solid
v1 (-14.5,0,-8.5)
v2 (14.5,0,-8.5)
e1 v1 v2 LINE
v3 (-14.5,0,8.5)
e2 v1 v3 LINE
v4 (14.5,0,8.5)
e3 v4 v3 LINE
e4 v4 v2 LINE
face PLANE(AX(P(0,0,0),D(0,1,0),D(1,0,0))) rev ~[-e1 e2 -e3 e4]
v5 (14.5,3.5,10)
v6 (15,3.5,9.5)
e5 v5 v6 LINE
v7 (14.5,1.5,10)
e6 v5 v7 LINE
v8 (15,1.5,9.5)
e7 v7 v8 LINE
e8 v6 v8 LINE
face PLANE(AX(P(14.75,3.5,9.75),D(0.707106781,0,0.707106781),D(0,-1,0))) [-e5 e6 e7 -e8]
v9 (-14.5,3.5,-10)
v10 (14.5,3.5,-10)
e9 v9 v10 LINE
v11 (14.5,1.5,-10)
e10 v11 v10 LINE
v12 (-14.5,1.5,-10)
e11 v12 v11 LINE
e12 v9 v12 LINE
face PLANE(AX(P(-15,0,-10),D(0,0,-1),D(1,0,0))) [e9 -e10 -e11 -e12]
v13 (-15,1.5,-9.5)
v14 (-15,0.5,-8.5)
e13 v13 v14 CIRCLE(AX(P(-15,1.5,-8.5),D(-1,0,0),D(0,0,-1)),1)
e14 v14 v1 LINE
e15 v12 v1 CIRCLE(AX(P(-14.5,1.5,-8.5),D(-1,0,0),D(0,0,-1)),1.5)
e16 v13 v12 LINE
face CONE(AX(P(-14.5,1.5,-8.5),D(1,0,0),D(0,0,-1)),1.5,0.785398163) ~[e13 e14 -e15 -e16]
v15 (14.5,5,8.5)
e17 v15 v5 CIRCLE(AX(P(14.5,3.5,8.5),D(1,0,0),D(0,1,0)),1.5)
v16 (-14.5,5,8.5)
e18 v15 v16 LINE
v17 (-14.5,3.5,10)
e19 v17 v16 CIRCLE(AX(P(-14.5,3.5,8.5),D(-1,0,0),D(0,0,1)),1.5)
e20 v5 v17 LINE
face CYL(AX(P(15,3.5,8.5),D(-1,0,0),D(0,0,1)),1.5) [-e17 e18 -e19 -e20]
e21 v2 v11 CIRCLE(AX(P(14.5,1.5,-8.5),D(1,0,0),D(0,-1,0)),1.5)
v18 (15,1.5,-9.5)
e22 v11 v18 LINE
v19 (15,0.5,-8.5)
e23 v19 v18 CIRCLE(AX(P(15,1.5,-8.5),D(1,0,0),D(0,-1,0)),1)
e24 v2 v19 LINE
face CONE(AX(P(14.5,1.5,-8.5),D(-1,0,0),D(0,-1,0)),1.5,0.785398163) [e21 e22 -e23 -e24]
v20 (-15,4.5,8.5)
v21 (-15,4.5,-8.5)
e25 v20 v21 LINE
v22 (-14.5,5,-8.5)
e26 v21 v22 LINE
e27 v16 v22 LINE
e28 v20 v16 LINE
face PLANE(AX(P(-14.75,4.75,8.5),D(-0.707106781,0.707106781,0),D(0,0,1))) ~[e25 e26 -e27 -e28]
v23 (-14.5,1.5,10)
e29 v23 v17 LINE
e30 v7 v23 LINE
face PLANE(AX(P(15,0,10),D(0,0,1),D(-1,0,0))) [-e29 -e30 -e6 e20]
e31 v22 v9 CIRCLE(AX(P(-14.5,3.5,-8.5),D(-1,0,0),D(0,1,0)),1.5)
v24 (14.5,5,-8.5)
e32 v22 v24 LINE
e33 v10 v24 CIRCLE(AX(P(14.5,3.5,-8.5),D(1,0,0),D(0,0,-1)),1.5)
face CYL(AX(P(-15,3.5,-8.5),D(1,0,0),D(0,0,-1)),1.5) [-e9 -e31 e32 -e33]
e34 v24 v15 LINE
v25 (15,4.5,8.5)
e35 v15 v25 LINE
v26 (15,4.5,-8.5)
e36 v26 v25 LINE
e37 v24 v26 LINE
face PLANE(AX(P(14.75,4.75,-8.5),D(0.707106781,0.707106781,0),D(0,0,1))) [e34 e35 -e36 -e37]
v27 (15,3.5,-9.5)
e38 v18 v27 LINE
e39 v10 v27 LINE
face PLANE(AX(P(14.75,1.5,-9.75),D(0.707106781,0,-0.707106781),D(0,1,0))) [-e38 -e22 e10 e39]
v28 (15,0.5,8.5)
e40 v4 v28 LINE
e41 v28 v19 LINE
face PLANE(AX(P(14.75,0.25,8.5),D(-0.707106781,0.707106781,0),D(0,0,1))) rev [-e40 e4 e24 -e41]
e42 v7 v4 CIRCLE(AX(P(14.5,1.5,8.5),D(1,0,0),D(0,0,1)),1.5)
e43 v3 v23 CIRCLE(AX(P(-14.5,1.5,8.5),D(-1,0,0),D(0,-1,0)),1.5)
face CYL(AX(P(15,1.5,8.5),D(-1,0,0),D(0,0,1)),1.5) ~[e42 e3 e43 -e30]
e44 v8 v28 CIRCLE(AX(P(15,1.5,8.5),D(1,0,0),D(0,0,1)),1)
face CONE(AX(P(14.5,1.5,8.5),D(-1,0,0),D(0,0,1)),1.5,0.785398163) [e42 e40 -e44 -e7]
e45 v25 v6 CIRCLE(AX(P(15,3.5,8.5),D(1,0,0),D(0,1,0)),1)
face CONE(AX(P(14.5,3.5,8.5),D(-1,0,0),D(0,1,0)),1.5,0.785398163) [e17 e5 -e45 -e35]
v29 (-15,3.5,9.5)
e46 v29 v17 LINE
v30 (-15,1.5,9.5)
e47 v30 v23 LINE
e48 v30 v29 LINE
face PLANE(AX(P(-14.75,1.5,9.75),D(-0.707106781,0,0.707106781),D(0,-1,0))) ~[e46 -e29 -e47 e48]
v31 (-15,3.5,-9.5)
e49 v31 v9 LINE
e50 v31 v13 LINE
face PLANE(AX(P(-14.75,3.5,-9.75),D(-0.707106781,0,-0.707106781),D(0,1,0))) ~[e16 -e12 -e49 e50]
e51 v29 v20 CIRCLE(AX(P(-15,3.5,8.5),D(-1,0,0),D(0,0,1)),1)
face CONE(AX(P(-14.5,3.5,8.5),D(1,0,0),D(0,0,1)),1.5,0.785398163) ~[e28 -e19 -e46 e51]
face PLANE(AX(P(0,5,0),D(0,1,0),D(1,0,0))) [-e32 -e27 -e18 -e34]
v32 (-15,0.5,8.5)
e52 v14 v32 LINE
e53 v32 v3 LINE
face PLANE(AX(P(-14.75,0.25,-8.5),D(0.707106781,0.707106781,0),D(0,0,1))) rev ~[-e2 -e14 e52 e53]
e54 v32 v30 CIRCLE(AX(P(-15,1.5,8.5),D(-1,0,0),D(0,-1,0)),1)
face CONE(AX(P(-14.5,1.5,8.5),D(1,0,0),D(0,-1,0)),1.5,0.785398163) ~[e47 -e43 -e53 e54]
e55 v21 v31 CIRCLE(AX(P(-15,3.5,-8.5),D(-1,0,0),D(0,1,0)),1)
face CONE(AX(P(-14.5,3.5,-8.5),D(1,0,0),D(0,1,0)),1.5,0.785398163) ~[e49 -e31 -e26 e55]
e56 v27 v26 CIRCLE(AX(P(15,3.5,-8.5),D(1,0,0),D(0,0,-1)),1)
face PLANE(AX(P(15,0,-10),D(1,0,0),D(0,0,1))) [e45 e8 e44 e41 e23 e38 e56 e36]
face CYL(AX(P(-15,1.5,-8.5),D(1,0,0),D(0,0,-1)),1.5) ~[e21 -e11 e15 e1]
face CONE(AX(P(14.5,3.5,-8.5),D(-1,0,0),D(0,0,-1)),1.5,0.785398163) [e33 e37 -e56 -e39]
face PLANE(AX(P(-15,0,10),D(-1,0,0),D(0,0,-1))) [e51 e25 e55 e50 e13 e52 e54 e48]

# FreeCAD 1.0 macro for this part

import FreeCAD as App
import Part
import Sketcher
from FreeCAD import Vector
Q = App.Units.Quantity


def edges_at(feature, points):
    """Names of the edges that pass closest to the given points."""
    edges = feature.Shape.Edges
    near = lambda p: min(range(len(edges)), key=lambda i: edges[i].distToShape(Part.Vertex(*p))[0])
    return sorted({f"Edge{near(p) + 1}" for p in points})


def add_polygon(sketch, points):
    """Adds a closed chain of lines whose ends are joined by coincident constraints."""
    first, n = sketch.GeometryCount, len(points)
    for a, b in zip(points, points[1:] + points[:1]):
        sketch.addGeometry(Part.LineSegment(App.Vector(*a, 0), App.Vector(*b, 0)), False)
    for i in range(n):
        sketch.addConstraint(Sketcher.Constraint("Coincident", first + i, 2, first + (i + 1) % n, 1))

doc = App.newDocument("Part")
params = doc.addObject("Spreadsheet::Sheet", "Params")
for row, (alias, value) in enumerate([
    ("sketch1_width", "30 mm"),
    ("sketch1_height", "20 mm"),
    ("pad1_length", "5 mm"),
    ("fillet_radius", "1.5 mm"),
    ("chamfer_size", "0.5 mm"),
], start=1):
    params.set(f"A{row}", alias)
    params.set(f"B{row}", "=" + value)
    params.setAlias(f"B{row}", alias)

body = doc.addObject("PartDesign::Body", "Body")

# Sketch on XZ plane
sketch1 = body.newObject("Sketcher::SketchObject", "Sketch")
sketch1.AttachmentSupport = (doc.getObject("XZ_Plane"), [""])
sketch1.MapMode = "FlatFace"
add_polygon(sketch1, [(15, -10), (-15, -10), (-15, 10), (15, 10)])  # lines 0-3
sketch1.addConstraint(Sketcher.Constraint("Horizontal", 0))
sketch1.addConstraint(Sketcher.Constraint("Vertical", 1))
sketch1.addConstraint(Sketcher.Constraint("Horizontal", 2))
sketch1.addConstraint(Sketcher.Constraint("Vertical", 3))
sketch1.addConstraint(Sketcher.Constraint("Symmetric", 0, 2, 2, 2, -1, 1))
sketch1.addConstraint(Sketcher.Constraint("DistanceX", 0, 2, 0, 1, Q("30 mm")))
sketch1.addConstraint(Sketcher.Constraint("DistanceY", 1, 1, 1, 2, Q("20 mm")))
sketch1.setExpression("Constraints[9]", "Params.sketch1_width")
sketch1.setExpression("Constraints[10]", "Params.sketch1_height")
pad1 = body.newObject("PartDesign::Pad", "Pad")
pad1.Profile = sketch1
pad1.setExpression("Length", "Params.pad1_length")
pad1.Reversed = True
doc.recompute()

fillet = body.newObject("PartDesign::Fillet", "Fillet")
fillet.Base = (pad1, edges_at(pad1, [
    (0, 5, 10),
    (0, 0, 10),
    (0, 5, -10),
    (0, 0, -10),
]))
fillet.setExpression("Radius", "Params.fillet_radius")
doc.recompute()

chamfer = body.newObject("PartDesign::Chamfer", "Chamfer")
chamfer.Base = (fillet, edges_at(fillet, [
    (-15, 2.5, 10),
    (-15, 0.439, 9.561),
    (-15, 0, 0),
    (-15, 0.439, -9.561),
    (-15, 2.5, -10),
    (-15, 4.561, -9.561),
    (-15, 5, 0),
    (-15, 4.561, 9.561),
    (15, 2.5, -10),
    (15, 0.439, -9.561),
    (15, 0, 0),
    (15, 0.439, 9.561),
    (15, 2.5, 10),
    (15, 4.561, 9.561),
    (15, 5, 0),
    (15, 4.561, -9.561),
]))
chamfer.setExpression("Size", "Params.chamfer_size")

doc.recompute()
